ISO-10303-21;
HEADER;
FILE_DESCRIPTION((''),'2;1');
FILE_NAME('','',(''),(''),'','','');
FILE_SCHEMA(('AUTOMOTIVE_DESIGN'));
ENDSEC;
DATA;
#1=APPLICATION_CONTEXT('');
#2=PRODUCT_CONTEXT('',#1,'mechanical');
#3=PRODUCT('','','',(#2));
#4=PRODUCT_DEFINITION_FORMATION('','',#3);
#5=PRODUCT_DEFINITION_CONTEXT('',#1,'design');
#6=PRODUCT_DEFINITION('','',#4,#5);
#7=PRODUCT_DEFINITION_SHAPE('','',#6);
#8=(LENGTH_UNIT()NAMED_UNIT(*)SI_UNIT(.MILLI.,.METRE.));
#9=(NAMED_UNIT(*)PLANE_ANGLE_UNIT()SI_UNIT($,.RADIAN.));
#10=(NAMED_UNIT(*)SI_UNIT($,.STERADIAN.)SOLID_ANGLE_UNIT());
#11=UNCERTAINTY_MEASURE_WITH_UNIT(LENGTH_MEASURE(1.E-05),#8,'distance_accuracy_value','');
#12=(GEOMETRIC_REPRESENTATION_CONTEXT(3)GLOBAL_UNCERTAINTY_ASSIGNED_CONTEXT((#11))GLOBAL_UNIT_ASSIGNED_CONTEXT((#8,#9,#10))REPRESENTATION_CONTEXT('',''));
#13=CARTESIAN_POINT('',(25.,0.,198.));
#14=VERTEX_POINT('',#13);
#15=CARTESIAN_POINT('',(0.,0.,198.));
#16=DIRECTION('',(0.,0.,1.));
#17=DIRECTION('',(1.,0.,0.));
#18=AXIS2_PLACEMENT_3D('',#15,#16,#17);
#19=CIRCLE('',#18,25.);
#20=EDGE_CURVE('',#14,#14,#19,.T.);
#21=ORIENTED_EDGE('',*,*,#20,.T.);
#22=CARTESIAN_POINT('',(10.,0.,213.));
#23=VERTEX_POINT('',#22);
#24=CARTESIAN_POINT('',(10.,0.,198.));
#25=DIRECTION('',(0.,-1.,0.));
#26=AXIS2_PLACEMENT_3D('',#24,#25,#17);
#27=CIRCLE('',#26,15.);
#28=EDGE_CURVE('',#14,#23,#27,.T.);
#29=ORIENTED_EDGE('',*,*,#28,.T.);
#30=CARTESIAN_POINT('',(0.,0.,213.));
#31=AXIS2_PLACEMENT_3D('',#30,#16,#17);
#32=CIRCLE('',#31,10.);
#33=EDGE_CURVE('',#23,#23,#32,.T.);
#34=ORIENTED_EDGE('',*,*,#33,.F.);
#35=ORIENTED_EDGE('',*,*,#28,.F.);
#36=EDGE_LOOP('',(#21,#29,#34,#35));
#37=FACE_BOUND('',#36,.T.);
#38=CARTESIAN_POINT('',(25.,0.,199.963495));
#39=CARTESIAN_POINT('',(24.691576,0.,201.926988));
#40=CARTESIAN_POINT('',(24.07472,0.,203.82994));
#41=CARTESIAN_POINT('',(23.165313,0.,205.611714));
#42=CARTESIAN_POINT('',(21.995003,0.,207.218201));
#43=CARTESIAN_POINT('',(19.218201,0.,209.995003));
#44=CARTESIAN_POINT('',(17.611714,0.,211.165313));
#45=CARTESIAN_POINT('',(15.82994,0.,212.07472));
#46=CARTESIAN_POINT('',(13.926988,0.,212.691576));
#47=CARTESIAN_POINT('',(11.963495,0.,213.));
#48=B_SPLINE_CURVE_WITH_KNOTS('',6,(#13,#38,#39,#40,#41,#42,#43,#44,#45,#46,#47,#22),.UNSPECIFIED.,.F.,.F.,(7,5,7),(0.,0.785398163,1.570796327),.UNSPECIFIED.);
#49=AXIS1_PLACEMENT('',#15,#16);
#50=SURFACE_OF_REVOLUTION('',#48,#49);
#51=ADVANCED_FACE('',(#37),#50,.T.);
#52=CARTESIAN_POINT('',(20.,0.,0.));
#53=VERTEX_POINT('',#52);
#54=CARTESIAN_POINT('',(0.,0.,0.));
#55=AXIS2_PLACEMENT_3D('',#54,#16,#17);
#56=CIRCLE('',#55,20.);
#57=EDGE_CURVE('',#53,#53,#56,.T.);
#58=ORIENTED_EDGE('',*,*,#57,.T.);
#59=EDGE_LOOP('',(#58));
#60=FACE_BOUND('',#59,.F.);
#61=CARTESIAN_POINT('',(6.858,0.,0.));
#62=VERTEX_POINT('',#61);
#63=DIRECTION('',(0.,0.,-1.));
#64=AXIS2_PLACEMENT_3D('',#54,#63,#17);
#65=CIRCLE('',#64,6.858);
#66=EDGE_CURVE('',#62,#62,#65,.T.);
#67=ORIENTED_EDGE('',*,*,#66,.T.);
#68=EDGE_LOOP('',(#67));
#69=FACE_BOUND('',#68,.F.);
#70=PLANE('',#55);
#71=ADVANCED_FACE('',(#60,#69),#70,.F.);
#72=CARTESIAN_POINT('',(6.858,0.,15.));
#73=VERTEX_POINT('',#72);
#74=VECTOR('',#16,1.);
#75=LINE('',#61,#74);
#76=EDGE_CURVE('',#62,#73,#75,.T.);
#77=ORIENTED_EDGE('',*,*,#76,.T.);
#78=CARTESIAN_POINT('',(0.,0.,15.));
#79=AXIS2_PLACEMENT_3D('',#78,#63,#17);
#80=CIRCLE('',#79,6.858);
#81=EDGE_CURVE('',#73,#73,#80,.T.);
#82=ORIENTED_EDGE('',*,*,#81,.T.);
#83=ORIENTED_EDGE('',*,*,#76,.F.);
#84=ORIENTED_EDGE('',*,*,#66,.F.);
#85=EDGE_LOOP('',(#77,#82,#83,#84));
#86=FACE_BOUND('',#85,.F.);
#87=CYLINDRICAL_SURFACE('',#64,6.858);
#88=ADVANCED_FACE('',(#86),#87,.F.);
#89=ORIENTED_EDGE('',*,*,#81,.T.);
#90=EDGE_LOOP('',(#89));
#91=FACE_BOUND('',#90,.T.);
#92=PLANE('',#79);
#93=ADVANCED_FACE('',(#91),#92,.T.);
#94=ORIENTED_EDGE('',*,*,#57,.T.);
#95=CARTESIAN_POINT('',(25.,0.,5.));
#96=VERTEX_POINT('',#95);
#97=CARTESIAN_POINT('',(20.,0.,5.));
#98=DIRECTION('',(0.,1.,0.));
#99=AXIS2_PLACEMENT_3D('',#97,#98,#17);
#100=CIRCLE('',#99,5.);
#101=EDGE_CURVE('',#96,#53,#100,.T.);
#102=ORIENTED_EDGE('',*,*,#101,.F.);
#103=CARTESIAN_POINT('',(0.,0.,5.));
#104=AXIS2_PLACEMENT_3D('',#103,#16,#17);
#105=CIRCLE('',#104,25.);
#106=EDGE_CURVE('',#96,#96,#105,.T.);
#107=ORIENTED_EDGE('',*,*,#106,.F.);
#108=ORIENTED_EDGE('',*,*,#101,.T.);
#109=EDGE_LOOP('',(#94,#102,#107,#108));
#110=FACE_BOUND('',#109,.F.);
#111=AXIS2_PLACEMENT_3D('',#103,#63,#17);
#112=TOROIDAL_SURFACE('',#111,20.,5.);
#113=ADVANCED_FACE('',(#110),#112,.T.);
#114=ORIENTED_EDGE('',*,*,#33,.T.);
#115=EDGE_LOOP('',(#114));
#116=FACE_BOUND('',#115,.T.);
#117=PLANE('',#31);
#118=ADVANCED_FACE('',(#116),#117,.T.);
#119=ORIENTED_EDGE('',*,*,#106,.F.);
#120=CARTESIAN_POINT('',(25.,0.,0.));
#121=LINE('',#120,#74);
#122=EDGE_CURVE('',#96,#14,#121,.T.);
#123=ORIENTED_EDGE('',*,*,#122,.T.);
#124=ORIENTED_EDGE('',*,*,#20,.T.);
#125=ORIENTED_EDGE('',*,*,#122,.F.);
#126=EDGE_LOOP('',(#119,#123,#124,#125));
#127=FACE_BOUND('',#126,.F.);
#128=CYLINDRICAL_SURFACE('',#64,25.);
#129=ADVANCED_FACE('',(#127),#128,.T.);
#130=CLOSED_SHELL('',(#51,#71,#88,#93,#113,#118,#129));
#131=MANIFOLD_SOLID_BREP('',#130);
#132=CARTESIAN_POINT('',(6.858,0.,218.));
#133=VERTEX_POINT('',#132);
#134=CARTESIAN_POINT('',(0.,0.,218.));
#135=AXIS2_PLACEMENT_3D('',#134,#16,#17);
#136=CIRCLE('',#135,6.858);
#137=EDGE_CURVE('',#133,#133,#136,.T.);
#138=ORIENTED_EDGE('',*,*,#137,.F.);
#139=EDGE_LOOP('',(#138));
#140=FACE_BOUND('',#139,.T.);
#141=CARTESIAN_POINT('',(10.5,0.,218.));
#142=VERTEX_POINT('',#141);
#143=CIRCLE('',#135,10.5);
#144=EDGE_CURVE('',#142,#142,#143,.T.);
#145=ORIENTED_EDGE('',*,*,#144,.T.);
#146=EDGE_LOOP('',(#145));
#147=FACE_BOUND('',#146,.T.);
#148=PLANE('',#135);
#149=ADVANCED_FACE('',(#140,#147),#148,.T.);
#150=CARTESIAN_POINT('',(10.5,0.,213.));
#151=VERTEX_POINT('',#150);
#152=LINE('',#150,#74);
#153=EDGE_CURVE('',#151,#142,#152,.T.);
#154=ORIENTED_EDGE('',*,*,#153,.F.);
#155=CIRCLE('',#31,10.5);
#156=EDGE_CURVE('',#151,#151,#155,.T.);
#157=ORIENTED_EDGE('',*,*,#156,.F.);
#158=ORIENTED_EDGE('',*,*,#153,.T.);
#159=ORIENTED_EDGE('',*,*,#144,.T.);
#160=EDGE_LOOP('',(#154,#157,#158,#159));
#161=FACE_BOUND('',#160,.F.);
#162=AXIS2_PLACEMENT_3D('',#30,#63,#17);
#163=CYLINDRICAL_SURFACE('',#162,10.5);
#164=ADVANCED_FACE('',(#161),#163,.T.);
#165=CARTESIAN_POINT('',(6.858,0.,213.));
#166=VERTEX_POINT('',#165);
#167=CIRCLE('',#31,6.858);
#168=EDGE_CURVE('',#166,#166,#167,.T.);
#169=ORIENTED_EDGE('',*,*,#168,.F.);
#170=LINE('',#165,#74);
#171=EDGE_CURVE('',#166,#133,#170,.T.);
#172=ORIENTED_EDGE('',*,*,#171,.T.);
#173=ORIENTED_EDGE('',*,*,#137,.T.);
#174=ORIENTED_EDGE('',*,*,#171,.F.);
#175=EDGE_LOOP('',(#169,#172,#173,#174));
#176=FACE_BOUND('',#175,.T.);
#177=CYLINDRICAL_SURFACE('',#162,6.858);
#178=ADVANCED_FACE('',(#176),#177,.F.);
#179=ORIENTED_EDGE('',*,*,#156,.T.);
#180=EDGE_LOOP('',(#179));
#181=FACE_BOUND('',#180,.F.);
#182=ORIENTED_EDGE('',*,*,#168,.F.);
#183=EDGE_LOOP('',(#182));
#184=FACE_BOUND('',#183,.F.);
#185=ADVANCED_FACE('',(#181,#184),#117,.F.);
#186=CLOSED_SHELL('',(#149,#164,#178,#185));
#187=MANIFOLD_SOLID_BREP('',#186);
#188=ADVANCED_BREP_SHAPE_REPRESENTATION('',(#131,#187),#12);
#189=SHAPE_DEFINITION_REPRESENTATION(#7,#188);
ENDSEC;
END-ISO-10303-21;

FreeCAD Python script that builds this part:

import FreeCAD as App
import Part
import Sketcher
from FreeCAD import Vector
Q = App.Units.Quantity


def edges_at(feature, points):
    """Names of the edges that pass closest to the given points."""
    edges = feature.Shape.Edges
    near = lambda p: min(range(len(edges)), key=lambda i: edges[i].distToShape(Part.Vertex(*p))[0])
    return sorted({f"Edge{near(p) + 1}" for p in points})

doc = App.newDocument("Part")
body = doc.addObject("PartDesign::Body", "Body")

# Sketch on XY plane
sketch1 = body.newObject("Sketcher::SketchObject", "Sketch")
sketch1.AttachmentSupport = (doc.getObject("XY_Plane"), [""])
sketch1.MapMode = "FlatFace"
sketch1.addGeometry(Part.Circle(Vector(0, 0, 0), Vector(0, 0, 1), 25), False)
sketch1.addConstraint([
    Sketcher.Constraint("Coincident", 0, 3, -1, 1),
    Sketcher.Constraint("Diameter", 0, Q("50 mm")),
])
pad1 = body.newObject("PartDesign::Pad", "Pad")
pad1.Profile = sketch1
pad1.Length = 213
doc.recompute()

fillet = body.newObject("PartDesign::Fillet", "Fillet")
fillet.Base = (pad1, edges_at(pad1, [(-25, 0, 213)]))
fillet.Radius = 15
doc.recompute()

fillet2 = body.newObject("PartDesign::Fillet", "Fillet001")
fillet2.Base = (fillet, edges_at(fillet, [(-25, 0, 0)]))
fillet2.Radius = 5

# Sketch on XY plane
sketch2 = body.newObject("Sketcher::SketchObject", "Sketch001")
sketch2.AttachmentSupport = (doc.getObject("XY_Plane"), [""])
sketch2.MapMode = "FlatFace"
sketch2.addGeometry(Part.Circle(Vector(0, 0, 0), Vector(0, 0, 1), 7), False)
sketch2.addConstraint([
    Sketcher.Constraint("Coincident", 0, 3, -1, 1),
    Sketcher.Constraint("Diameter", 0, Q("13.716 mm")),
])
pocket1 = body.newObject("PartDesign::Pocket", "Pocket")
pocket1.Profile = sketch2
pocket1.Length = 15
pocket1.Reversed = True
body2 = doc.addObject("PartDesign::Body", "Body001")

# Sketch on XY plane
sketch3 = body2.newObject("Sketcher::SketchObject", "Sketch002")
sketch3.AttachmentSupport = (doc.getObject("XY_Plane001"), [""])
sketch3.MapMode = "FlatFace"
sketch3.AttachmentOffset = App.Placement(Vector(0, 0, 213), App.Rotation())
sketch3.addGeometry([
    Part.Circle(Vector(0, 0, 0), Vector(0, 0, 1), 10),
    Part.Circle(Vector(0, 0, 0), Vector(0, 0, 1), 7),
], False)
sketch3.addConstraint([
    Sketcher.Constraint("Coincident", 0, 3, -1, 1),
    Sketcher.Constraint("Coincident", 1, 3, -1, 1),
    Sketcher.Constraint("Diameter", 0, Q("21 mm")),
    Sketcher.Constraint("Diameter", 1, Q("13.716 mm")),
])
pad2 = body2.newObject("PartDesign::Pad", "Pad001")
pad2.Profile = sketch3
pad2.Length = 5

doc.recompute()
